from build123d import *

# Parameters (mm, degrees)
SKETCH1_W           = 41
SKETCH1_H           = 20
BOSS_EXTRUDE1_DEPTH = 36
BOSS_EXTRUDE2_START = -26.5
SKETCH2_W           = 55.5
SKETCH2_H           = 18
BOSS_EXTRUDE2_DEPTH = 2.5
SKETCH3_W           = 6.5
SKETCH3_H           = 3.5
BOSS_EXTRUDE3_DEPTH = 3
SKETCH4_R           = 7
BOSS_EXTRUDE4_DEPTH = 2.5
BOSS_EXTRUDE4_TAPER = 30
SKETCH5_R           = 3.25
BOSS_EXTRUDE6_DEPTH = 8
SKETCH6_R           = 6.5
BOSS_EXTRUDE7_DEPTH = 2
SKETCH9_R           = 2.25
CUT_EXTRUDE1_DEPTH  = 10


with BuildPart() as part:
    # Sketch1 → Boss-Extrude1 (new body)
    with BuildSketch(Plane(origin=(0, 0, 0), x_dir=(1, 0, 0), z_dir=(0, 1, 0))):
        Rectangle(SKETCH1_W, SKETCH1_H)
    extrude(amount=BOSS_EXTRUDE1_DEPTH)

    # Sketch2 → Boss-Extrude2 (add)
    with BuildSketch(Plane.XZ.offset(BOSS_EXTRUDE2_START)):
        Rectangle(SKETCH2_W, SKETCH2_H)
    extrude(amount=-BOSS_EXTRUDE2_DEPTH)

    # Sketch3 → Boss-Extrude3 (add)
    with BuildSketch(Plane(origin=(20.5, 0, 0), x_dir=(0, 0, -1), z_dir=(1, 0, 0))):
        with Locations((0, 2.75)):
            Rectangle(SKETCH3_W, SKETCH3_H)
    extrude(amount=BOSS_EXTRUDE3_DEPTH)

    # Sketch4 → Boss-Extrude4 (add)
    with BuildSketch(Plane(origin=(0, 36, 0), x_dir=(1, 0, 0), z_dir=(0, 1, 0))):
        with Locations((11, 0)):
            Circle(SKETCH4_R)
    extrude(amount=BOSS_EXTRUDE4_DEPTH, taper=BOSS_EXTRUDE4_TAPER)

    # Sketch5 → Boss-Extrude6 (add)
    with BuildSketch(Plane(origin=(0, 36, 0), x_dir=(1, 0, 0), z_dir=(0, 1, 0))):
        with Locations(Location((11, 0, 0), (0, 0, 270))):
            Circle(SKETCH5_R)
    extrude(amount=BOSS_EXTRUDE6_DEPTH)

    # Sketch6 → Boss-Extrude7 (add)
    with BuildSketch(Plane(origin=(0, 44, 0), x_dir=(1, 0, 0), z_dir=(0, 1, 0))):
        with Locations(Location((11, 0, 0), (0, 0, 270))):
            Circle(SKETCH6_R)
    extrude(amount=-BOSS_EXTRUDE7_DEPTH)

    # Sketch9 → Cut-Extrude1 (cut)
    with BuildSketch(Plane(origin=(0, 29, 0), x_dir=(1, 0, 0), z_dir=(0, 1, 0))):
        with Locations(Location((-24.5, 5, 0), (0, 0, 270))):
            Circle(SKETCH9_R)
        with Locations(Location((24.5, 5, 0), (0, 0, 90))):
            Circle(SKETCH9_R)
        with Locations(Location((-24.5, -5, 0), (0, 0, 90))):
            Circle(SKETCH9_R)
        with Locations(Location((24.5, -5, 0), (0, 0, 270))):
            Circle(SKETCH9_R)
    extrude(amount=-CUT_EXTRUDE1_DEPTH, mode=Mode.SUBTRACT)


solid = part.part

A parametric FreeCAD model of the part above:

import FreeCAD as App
import Part
import Sketcher

V = App.Vector


def add_polygon(sketch, points):
    """Adds a closed chain of lines whose ends are joined by coincident constraints."""
    first, n = sketch.GeometryCount, len(points)
    for a, b in zip(points, points[1:] + points[:1]):
        sketch.addGeometry(Part.LineSegment(App.Vector(*a, 0), App.Vector(*b, 0)), False)
    for i in range(n):
        sketch.addConstraint(Sketcher.Constraint("Coincident", first + i, 2, first + (i + 1) % n, 1))

doc = App.newDocument("Part")
params = doc.addObject("Spreadsheet::Sheet", "Params")
for row, (alias, value) in enumerate([
    ("sketch1_width", "41 mm"),
    ("sketch1_height", "20 mm"),
    ("pad1_length", "36 mm"),
    ("sketch2_height", "18 mm"),
    ("sketch2_width", "55.5 mm"),
    ("pad2_length", "2.5 mm"),
    ("sketch3_width", "3.5 mm"),
    ("sketch3_height", "6.5 mm"),
    ("pad3_length", "3 mm"),
    ("sketch4_diameter", "14 mm"),
    ("pad4_length", "2.5 mm"),
    ("pad4_taper", "-30 deg"),
    ("sketch5_diameter", "6.5 mm"),
    ("pad5_length", "8 mm"),
    ("sketch6_diameter", "13 mm"),
    ("pad6_length", "2 mm"),
    ("sketch7_diameter", "4.5 mm"),
    ("pocket1_length", "10 mm"),
], start=1):
    params.set(f"A{row}", alias)
    params.set(f"B{row}", "=" + value)
    params.setAlias(f"B{row}", alias)

body = doc.addObject("PartDesign::Body", "Body")

sketch1 = doc.addObject("Sketcher::SketchObject", "Sketch")
body.addObject(sketch1)
sketch1.AttachmentSupport = (doc.XZ_Plane, [""])
sketch1.MapMode = "FlatFace"
add_polygon(sketch1, [(-20.5, -10), (-20.5, 10), (20.5, 10), (20.5, -10)])
sketch1.addConstraint([
    Sketcher.Constraint("Vertical", 0),
    Sketcher.Constraint("Horizontal", 1),
    Sketcher.Constraint("Vertical", 2),
    Sketcher.Constraint("Horizontal", 3),
    Sketcher.Constraint("Symmetric", 0, 2, 2, 2, -1, 1),
    Sketcher.Constraint("DistanceX", 1, 1, 1, 2, 41.0),
    Sketcher.Constraint("DistanceY", 0, 1, 0, 2, 20.0),
])
sketch1.setExpression("Constraints[9]", "Params.sketch1_width")
sketch1.setExpression("Constraints[10]", "Params.sketch1_height")
pad1 = doc.addObject("PartDesign::Pad", "Pad")
body.addObject(pad1)
pad1.Profile = sketch1
pad1.setExpression("Length", "Params.pad1_length")
pad1.Reversed = True

sketch2 = doc.addObject("Sketcher::SketchObject", "Sketch001")
body.addObject(sketch2)
sketch2.AttachmentSupport = (doc.XZ_Plane, [""])
sketch2.MapMode = "FlatFace"
sketch2.AttachmentOffset = App.Placement(V(0, 0, -26.5), App.Rotation())
add_polygon(sketch2, [(-27.75, 9), (-27.75, -9), (27.75, -9), (27.75, 9)])
sketch2.addConstraint([
    Sketcher.Constraint("Vertical", 0),
    Sketcher.Constraint("Horizontal", 1),
    Sketcher.Constraint("Vertical", 2),
    Sketcher.Constraint("Horizontal", 3),
    Sketcher.Constraint("Symmetric", 0, 2, 2, 2, -1, 1),
    Sketcher.Constraint("DistanceY", 0, 2, 0, 1, 18.0),
    Sketcher.Constraint("DistanceX", 1, 1, 1, 2, 55.5),
])
sketch2.setExpression("Constraints[9]", "Params.sketch2_height")
sketch2.setExpression("Constraints[10]", "Params.sketch2_width")
pad2 = doc.addObject("PartDesign::Pad", "Pad001")
body.addObject(pad2)
pad2.Profile = sketch2
pad2.setExpression("Length", "Params.pad2_length")
pad2.Reversed = True

sketch3 = doc.addObject("Sketcher::SketchObject", "Sketch002")
body.addObject(sketch3)
sketch3.AttachmentSupport = (doc.YZ_Plane, [""])
sketch3.MapMode = "FlatFace"
sketch3.AttachmentOffset = App.Placement(V(0, 0, 20.5), App.Rotation())
add_polygon(sketch3, [(4.5, 3.25), (1, 3.25), (1, -3.25), (4.5, -3.25)])
sketch3.addConstraint([
    Sketcher.Constraint("Horizontal", 0),
    Sketcher.Constraint("Vertical", 1),
    Sketcher.Constraint("Horizontal", 2),
    Sketcher.Constraint("Vertical", 3),
    Sketcher.Constraint("DistanceX", 0, 2, 0, 1, 3.5),
    Sketcher.Constraint("DistanceY", 1, 2, 1, 1, 6.5),
    Sketcher.Constraint("DistanceX", -1, 1, 0, 2, 1.0),
    Sketcher.Constraint("DistanceY", -1, 1, 0, 2, 3.25),
])
sketch3.setExpression("Constraints[8]", "Params.sketch3_width")
sketch3.setExpression("Constraints[9]", "Params.sketch3_height")
pad3 = doc.addObject("PartDesign::Pad", "Pad002")
body.addObject(pad3)
pad3.Profile = sketch3
pad3.setExpression("Length", "Params.pad3_length")

sketch4 = doc.addObject("Sketcher::SketchObject", "Sketch003")
body.addObject(sketch4)
sketch4.AttachmentSupport = (doc.XZ_Plane, [""])
sketch4.MapMode = "FlatFace"
sketch4.AttachmentOffset = App.Placement(V(0, 0, -36), App.Rotation())
sketch4.addGeometry(Part.Circle(V(11, 0, 0), V(0, 0, 1), 7), False)
sketch4.addConstraint([
    Sketcher.Constraint("PointOnObject", 0, 3, -1),
    Sketcher.Constraint("Diameter", 0, 14.0),
    Sketcher.Constraint("DistanceX", -1, 1, 0, 3, 11.0),
])
sketch4.setExpression("Constraints[1]", "Params.sketch4_diameter")
pad4 = doc.addObject("PartDesign::Pad", "Pad003")
body.addObject(pad4)
pad4.Profile = sketch4
pad4.setExpression("Length", "Params.pad4_length")
pad4.Reversed = True
pad4.setExpression("TaperAngle", "Params.pad4_taper")

sketch5 = doc.addObject("Sketcher::SketchObject", "Sketch004")
body.addObject(sketch5)
sketch5.AttachmentSupport = (doc.XZ_Plane, [""])
sketch5.MapMode = "FlatFace"
sketch5.AttachmentOffset = App.Placement(V(0, 0, -36), App.Rotation())
sketch5.addGeometry(Part.Circle(V(11, 0, 0), V(0, 0, 1), 3.25), False)
sketch5.addConstraint([
    Sketcher.Constraint("PointOnObject", 0, 3, -1),
    Sketcher.Constraint("Diameter", 0, 6.5),
    Sketcher.Constraint("DistanceX", -1, 1, 0, 3, 11.0),
])
sketch5.setExpression("Constraints[1]", "Params.sketch5_diameter")
pad5 = doc.addObject("PartDesign::Pad", "Pad004")
body.addObject(pad5)
pad5.Profile = sketch5
pad5.setExpression("Length", "Params.pad5_length")
pad5.Reversed = True

sketch6 = doc.addObject("Sketcher::SketchObject", "Sketch005")
body.addObject(sketch6)
sketch6.AttachmentSupport = (doc.XZ_Plane, [""])
sketch6.MapMode = "FlatFace"
sketch6.AttachmentOffset = App.Placement(V(0, 0, -44), App.Rotation())
sketch6.addGeometry(Part.Circle(V(11, 0, 0), V(0, 0, 1), 6.5), False)
sketch6.addConstraint([
    Sketcher.Constraint("PointOnObject", 0, 3, -1),
    Sketcher.Constraint("Diameter", 0, 13.0),
    Sketcher.Constraint("DistanceX", -1, 1, 0, 3, 11.0),
])
sketch6.setExpression("Constraints[1]", "Params.sketch6_diameter")
pad6 = doc.addObject("PartDesign::Pad", "Pad005")
body.addObject(pad6)
pad6.Profile = sketch6
pad6.setExpression("Length", "Params.pad6_length")

sketch7 = doc.addObject("Sketcher::SketchObject", "Sketch006")
body.addObject(sketch7)
sketch7.AttachmentSupport = (doc.XZ_Plane, [""])
sketch7.MapMode = "FlatFace"
sketch7.AttachmentOffset = App.Placement(V(0, 0, -29), App.Rotation())
sketch7.addGeometry([
    Part.Circle(V(-24.5, -5, 0), V(0, 0, 1), 2.25),
    Part.Circle(V(24.5, -5, 0), V(0, 0, 1), 2.25),
    Part.Circle(V(-24.5, 5, 0), V(0, 0, 1), 2.25),
    Part.Circle(V(24.5, 5, 0), V(0, 0, 1), 2.25),
], False)
sketch7.addConstraint([
    Sketcher.Constraint("Equal", 0, 1),
    Sketcher.Constraint("Equal", 1, 2),
    Sketcher.Constraint("Equal", 2, 3),
    Sketcher.Constraint("Symmetric", 1, 3, 2, 3, -1, 1),
    Sketcher.Constraint("Symmetric", 0, 3, 3, 3, -1, 1),
    Sketcher.Constraint("Symmetric", 0, 3, 1, 3, -2),
    Sketcher.Constraint("Diameter", 0, 4.5),
    Sketcher.Constraint("DistanceY", 0, 3, -1, 1, 5.0),
    Sketcher.Constraint("DistanceX", 0, 3, 1, 3, 49.0),
])
sketch7.setExpression("Constraints[6]", "Params.sketch7_diameter")
pocket1 = doc.addObject("PartDesign::Pocket", "Pocket")
body.addObject(pocket1)
pocket1.Profile = sketch7
pocket1.setExpression("Length", "Params.pocket1_length")
pocket1.Reversed = True

doc.recompute()
